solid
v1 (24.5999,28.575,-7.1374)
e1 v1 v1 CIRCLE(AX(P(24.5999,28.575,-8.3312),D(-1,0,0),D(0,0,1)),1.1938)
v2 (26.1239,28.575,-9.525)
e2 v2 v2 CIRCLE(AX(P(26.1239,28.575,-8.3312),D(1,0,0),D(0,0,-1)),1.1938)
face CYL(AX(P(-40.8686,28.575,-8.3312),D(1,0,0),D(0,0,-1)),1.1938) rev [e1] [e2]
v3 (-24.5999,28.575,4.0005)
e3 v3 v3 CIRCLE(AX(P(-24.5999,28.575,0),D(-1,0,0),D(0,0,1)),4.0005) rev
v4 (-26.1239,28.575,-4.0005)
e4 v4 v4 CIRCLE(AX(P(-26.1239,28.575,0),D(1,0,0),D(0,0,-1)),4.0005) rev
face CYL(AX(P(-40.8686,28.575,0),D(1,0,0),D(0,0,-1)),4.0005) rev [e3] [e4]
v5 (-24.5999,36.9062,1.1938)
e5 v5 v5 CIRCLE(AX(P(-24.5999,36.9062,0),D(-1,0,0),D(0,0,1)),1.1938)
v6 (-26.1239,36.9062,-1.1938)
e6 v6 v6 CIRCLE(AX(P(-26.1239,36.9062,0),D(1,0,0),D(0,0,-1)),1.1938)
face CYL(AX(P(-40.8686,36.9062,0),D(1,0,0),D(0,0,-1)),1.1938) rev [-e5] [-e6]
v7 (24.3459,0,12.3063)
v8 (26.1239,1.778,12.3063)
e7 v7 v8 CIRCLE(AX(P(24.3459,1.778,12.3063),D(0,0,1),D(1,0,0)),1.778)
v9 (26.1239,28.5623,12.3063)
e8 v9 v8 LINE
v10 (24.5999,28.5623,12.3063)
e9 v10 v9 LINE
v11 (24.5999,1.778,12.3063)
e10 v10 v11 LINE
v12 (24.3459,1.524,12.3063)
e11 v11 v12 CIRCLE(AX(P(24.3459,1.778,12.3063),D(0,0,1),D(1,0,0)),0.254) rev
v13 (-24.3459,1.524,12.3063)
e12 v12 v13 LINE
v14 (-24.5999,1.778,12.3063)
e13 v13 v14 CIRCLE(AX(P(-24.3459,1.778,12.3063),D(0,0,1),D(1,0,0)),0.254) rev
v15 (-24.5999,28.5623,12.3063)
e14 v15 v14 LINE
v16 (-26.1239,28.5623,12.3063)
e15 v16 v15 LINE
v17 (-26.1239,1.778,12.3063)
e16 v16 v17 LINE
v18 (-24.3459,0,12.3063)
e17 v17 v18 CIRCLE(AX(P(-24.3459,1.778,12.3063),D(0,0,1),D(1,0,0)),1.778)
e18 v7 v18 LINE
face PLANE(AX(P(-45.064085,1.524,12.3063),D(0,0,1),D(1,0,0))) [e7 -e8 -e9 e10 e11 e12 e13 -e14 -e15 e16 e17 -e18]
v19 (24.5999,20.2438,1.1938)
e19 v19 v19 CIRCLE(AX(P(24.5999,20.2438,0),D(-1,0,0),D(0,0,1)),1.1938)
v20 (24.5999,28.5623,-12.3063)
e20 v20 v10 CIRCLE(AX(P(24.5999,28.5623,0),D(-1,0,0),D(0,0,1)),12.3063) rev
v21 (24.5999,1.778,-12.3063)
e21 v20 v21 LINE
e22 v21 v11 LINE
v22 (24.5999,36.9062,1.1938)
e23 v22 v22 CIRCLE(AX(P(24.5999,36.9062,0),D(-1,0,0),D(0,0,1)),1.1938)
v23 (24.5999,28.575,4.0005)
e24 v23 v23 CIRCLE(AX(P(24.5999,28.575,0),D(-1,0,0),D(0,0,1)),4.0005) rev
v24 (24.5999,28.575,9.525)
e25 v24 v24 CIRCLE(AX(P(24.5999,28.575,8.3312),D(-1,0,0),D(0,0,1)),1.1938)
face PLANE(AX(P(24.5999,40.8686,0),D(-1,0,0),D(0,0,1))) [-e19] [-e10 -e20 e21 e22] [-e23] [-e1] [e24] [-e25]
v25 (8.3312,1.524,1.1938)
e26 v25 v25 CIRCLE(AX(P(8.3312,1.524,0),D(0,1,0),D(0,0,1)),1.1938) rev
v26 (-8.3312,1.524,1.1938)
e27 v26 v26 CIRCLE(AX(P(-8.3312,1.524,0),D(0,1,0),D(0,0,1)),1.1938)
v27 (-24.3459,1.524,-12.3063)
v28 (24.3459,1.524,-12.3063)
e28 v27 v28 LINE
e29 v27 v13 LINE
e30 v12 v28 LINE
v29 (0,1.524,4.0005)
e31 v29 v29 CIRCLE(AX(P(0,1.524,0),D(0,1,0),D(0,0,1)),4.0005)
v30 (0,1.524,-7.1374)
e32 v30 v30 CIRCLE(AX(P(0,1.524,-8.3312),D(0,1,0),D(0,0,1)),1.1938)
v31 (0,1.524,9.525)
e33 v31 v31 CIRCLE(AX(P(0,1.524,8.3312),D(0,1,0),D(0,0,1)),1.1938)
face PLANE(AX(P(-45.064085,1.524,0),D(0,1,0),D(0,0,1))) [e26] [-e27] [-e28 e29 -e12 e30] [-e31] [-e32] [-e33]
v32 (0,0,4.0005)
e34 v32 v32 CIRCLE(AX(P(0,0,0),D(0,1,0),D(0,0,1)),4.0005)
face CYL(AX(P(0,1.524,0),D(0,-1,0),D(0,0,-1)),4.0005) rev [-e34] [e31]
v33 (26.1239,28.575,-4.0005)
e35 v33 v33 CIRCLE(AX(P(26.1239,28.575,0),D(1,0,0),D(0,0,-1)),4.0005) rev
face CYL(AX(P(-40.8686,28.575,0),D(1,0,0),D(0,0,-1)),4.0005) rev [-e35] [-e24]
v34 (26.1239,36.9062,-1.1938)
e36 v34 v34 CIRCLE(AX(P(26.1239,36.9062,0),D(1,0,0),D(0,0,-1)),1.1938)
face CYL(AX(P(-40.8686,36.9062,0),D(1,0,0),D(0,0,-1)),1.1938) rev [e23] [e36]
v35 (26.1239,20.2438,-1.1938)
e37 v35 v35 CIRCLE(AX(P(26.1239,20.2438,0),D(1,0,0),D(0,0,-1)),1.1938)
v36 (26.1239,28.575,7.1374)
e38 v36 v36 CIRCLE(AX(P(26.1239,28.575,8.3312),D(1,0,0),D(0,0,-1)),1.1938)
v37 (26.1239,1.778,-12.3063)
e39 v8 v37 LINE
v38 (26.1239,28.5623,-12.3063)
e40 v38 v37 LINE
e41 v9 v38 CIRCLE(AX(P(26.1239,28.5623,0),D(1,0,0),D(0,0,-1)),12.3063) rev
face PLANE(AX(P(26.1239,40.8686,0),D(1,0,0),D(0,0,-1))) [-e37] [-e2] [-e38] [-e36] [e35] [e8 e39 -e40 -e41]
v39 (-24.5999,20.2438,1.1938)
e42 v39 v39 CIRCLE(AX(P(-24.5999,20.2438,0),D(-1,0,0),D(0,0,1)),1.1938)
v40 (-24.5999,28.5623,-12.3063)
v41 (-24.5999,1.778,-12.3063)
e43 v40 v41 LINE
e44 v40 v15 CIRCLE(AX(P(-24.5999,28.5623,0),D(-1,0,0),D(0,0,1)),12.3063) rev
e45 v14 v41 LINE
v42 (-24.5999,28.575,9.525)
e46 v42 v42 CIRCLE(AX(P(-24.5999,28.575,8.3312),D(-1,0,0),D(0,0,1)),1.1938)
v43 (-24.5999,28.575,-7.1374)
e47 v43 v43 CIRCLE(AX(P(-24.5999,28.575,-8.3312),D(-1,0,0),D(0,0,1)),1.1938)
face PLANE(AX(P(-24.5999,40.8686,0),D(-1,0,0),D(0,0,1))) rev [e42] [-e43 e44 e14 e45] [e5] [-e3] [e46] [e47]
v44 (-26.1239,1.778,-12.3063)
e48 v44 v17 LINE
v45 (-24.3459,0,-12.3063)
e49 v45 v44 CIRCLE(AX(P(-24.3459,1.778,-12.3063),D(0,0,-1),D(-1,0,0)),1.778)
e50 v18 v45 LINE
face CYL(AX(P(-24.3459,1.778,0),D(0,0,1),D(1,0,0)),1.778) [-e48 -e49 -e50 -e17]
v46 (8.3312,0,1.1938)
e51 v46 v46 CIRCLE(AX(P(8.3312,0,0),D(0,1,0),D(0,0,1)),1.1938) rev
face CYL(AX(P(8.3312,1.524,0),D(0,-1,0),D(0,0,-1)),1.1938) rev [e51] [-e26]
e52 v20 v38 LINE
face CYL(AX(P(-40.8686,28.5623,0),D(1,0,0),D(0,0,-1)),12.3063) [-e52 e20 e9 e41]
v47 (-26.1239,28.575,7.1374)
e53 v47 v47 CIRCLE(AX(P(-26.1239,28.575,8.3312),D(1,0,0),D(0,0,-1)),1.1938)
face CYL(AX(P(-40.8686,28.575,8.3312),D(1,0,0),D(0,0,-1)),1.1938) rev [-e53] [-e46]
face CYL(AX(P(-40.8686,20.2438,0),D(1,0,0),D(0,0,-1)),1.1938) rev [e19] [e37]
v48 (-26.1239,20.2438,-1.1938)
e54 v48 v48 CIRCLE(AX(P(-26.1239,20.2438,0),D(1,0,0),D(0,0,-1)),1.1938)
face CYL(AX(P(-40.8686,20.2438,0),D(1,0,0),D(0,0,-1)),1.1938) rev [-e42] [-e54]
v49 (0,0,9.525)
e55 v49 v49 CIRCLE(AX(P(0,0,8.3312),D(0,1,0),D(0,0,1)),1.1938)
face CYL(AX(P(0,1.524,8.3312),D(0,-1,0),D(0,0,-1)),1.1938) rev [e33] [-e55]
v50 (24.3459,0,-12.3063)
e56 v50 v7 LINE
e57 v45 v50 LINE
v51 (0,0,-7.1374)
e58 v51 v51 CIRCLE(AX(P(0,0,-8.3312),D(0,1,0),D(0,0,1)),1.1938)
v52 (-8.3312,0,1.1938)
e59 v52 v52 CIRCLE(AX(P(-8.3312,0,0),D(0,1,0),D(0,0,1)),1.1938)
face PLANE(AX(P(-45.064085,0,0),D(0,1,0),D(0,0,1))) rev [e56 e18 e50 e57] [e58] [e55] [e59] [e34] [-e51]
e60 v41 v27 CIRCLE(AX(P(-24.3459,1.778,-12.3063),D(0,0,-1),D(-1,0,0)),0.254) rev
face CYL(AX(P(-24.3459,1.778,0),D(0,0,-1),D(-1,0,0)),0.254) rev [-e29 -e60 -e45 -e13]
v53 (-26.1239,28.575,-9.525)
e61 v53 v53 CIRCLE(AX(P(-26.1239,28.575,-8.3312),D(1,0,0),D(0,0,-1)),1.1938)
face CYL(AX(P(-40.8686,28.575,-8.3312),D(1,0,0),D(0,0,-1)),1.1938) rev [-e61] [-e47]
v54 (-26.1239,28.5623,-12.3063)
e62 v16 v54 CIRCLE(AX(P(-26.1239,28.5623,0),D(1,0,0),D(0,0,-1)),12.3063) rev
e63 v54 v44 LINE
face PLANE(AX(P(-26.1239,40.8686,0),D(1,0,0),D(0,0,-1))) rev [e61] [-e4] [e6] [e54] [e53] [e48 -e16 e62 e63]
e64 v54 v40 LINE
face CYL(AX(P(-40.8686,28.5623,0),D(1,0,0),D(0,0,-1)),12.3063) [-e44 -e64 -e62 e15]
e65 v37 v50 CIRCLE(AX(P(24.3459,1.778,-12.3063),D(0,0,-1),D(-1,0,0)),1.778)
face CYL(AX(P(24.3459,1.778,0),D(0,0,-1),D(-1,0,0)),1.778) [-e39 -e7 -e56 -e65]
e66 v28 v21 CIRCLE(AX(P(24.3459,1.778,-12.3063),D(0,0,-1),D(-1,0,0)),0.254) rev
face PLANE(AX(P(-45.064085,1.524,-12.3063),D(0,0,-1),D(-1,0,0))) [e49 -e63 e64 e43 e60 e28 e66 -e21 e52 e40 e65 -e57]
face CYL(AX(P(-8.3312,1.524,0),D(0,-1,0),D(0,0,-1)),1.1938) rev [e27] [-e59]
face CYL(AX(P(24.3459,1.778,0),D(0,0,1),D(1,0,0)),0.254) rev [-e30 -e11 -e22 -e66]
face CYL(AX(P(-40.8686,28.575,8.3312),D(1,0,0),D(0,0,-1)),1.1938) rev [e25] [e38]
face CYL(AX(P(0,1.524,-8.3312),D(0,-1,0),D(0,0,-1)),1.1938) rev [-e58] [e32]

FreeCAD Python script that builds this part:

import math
import FreeCAD as App
import Part
import Sketcher

V = App.Vector
Q = App.Units.Quantity


def edges_at(feature, points):
    """Names of the edges that pass closest to the given points."""
    edges = feature.Shape.Edges
    near = lambda p: min(range(len(edges)), key=lambda i: edges[i].distToShape(Part.Vertex(*p))[0])
    return sorted({f"Edge{near(p) + 1}" for p in points})


def add_polygon(sketch, points):
    """Adds a closed chain of lines whose ends are joined by coincident constraints."""
    first, n = sketch.GeometryCount, len(points)
    for a, b in zip(points, points[1:] + points[:1]):
        sketch.addGeometry(Part.LineSegment(App.Vector(*a, 0), App.Vector(*b, 0)), False)
    for i in range(n):
        sketch.addConstraint(Sketcher.Constraint("Coincident", first + i, 2, first + (i + 1) % n, 1))

doc = App.newDocument("Part")
params = doc.addObject("Spreadsheet::Sheet", "Params")
for row, (alias, value) in enumerate([
    ("sketch1_diameter", "0.094 in"),
    ("sketch1_diameter2", "0.315 in"),
    ("sketch1_width", "1.937 in"),
    ("sketch1_height", "0.969 in"),
    ("pad1_length", "0.06 in"),
    ("sketch2_width", "0.06 in"),
    ("sketch2_height", "0.969 in"),
    ("pad2_length", "1.609 in"),
    ("sketch3_diameter", "0.315 in"),
    ("sketch3_diameter2", "0.094 in"),
    ("fillet_radius", "0.01 in"),
    ("fillet2_radius", "0.07 in"),
], start=1):
    params.set(f"A{row}", alias)
    params.set(f"B{row}", "=" + value)
    params.setAlias(f"B{row}", alias)

body = doc.addObject("PartDesign::Body", "Body")

sketch1 = body.newObject("Sketcher::SketchObject", "Sketch")
sketch1.AttachmentSupport = (doc.getObject("XZ_Plane"), [""])
sketch1.MapMode = "FlatFace"
add_polygon(sketch1, [(-24.5999, -12.3063), (-24.5999, 12.3063), (24.5999, 12.3063), (24.5999, -12.3063)])
sketch1.addGeometry(Part.Circle(V(0, 8.3312, 0), V(0, 0, 1), 1.1938), False)
sketch1.addGeometry(Part.Circle(V(-8.3312, 0, 0), V(0, 0, 1), 1.1938), False)
sketch1.addGeometry(Part.Circle(V(0, 0, 0), V(0, 0, 1), 4.0005), False)
sketch1.addGeometry(Part.Circle(V(8.3312, 0, 0), V(0, 0, 1), 1.1938), False)
sketch1.addGeometry(Part.Circle(V(0, -8.3312, 0), V(0, 0, 1), 1.1938), False)
sketch1.addConstraint([
    Sketcher.Constraint("Vertical", 0),
    Sketcher.Constraint("Horizontal", 1),
    Sketcher.Constraint("Vertical", 2),
    Sketcher.Constraint("Horizontal", 3),
    Sketcher.Constraint("Coincident", 6, 3, -1, 1),
    Sketcher.Constraint("Equal", 4, 5),
    Sketcher.Constraint("Equal", 5, 7),
    Sketcher.Constraint("Equal", 7, 8),
    Sketcher.Constraint("Symmetric", 5, 3, 7, 3, -1, 1),
    Sketcher.Constraint("Symmetric", 4, 3, 8, 3, -1, 1),
    Sketcher.Constraint("Symmetric", 0, 2, 2, 2, -1, 1),
    Sketcher.Constraint("PointOnObject", 4, 3, -2),
    Sketcher.Constraint("PointOnObject", 5, 3, -1),
    Sketcher.Constraint("Diameter", 4, Q("0.094 in")),
    Sketcher.Constraint("Diameter", 6, Q("0.315 in")),
    Sketcher.Constraint("DistanceX", 1, 1, 1, 2, Q("1.937 in")),
    Sketcher.Constraint("DistanceY", 0, 1, 0, 2, Q("0.969 in")),
    Sketcher.Constraint("DistanceY", -1, 1, 4, 3, Q("0.328 in")),
    Sketcher.Constraint("DistanceX", 5, 3, -1, 1, Q("0.328 in")),
])
sketch1.setExpression("Constraints[17]", "Params.sketch1_diameter")
sketch1.setExpression("Constraints[18]", "Params.sketch1_diameter2")
sketch1.setExpression("Constraints[19]", "Params.sketch1_width")
sketch1.setExpression("Constraints[20]", "Params.sketch1_height")
pad1 = body.newObject("PartDesign::Pad", "Pad")
pad1.Profile = sketch1
pad1.setExpression("Length", "Params.pad1_length")
pad1.Reversed = True

sketch2 = body.newObject("Sketcher::SketchObject", "Sketch001")
sketch2.AttachmentSupport = (doc.getObject("XZ_Plane"), [""])
sketch2.MapMode = "FlatFace"
add_polygon(sketch2, [(24.5999, -12.3063), (24.5999, 12.3063), (26.1239, 12.3063), (26.1239, -12.3063)])
add_polygon(sketch2, [(-26.1239, -12.3063), (-26.1239, 12.3063), (-24.5999, 12.3063), (-24.5999, -12.3063)])
sketch2.addConstraint([
    Sketcher.Constraint("Vertical", 0),
    Sketcher.Constraint("Horizontal", 1),
    Sketcher.Constraint("Vertical", 2),
    Sketcher.Constraint("Horizontal", 3),
    Sketcher.Constraint("Vertical", 4),
    Sketcher.Constraint("Horizontal", 5),
    Sketcher.Constraint("Vertical", 6),
    Sketcher.Constraint("Horizontal", 7),
    Sketcher.Constraint("Symmetric", 2, 2, 4, 2, -1, 1),
    Sketcher.Constraint("Symmetric", 0, 2, 6, 2, -1, 1),
    Sketcher.Constraint("Horizontal", 1, 2, 4, 2),
    Sketcher.Constraint("DistanceX", 1, 1, 1, 2, Q("0.06 in")),
    Sketcher.Constraint("DistanceY", 0, 1, 0, 2, Q("0.969 in")),
    Sketcher.Constraint("DistanceX", 4, 2, 0, 2, Q("1.997 in")),
])
sketch2.setExpression("Constraints[19]", "Params.sketch2_width")
sketch2.setExpression("Constraints[20]", "Params.sketch2_height")
pad2 = body.newObject("PartDesign::Pad", "Pad001")
pad2.Profile = sketch2
pad2.setExpression("Length", "Params.pad2_length")
pad2.Reversed = True

sketch3 = body.newObject("Sketcher::SketchObject", "Sketch002")
sketch3.AttachmentSupport = (doc.getObject("YZ_Plane"), [""])
sketch3.MapMode = "FlatFace"
sketch3.addGeometry([
    Part.LineSegment(V(40.8686, 0, 0), V(40.8686, 12.3063, 0)),
    Part.LineSegment(V(40.8686, 12.3063, 0), V(28.5623, 12.3063, 0)),
    Part.ArcOfCircle(Part.Circle(V(28.5623, 0, 0), V(0, 0, 1), 12.3063), math.radians(0), math.radians(90)),
    Part.LineSegment(V(40.8686, -12.3063, 0), V(40.8686, 0, 0)),
    Part.ArcOfCircle(Part.Circle(V(28.5623, 0, 0), V(0, 0, 1), 12.3063), math.radians(-90), math.radians(0)),
    Part.LineSegment(V(28.5623, -12.3063, 0), V(40.8686, -12.3063, 0)),
    Part.Circle(V(28.575, 0, 0), V(0, 0, 1), 4.0005),
    Part.Circle(V(28.575, -8.3312, 0), V(0, 0, 1), 1.1938),
    Part.Circle(V(36.9062, 0, 0), V(0, 0, 1), 1.1938),
    Part.Circle(V(28.575, 8.3312, 0), V(0, 0, 1), 1.1938),
    Part.Circle(V(20.2438, 0, 0), V(0, 0, 1), 1.1938),
], False)
sketch3.addConstraint([
    Sketcher.Constraint("Coincident", 0, 2, 1, 1),
    Sketcher.Constraint("Tangent", 1, 2, 2, 2),
    Sketcher.Constraint("Tangent", 2, 1, 0, 1),
    Sketcher.Constraint("Tangent", 3, 2, 4, 2),
    Sketcher.Constraint("Tangent", 4, 1, 5, 1),
    Sketcher.Constraint("Coincident", 5, 2, 3, 1),
    Sketcher.Constraint("Vertical", 0),
    Sketcher.Constraint("Horizontal", 1),
    Sketcher.Constraint("Vertical", 3),
    Sketcher.Constraint("Horizontal", 5),
    Sketcher.Constraint("Coincident", 4, 3, 2, 3),
    Sketcher.Constraint("Equal", 2, 4),
    Sketcher.Constraint("Equal", 7, 8),
    Sketcher.Constraint("Equal", 8, 9),
    Sketcher.Constraint("Equal", 9, 10),
    Sketcher.Constraint("Symmetric", 7, 3, 9, 3, -1),
    Sketcher.Constraint("PointOnObject", 2, 3, -1),
    Sketcher.Constraint("PointOnObject", 6, 3, -1),
    Sketcher.Constraint("PointOnObject", 8, 3, -1),
    Sketcher.Constraint("PointOnObject", 10, 3, -1),
    Sketcher.Constraint("Vertical", 6, 3, 7, 3),
    Sketcher.Constraint("Diameter", 6, Q("0.315 in")),
    Sketcher.Constraint("Diameter", 7, Q("0.094 in")),
    Sketcher.Constraint("Radius", 2, Q("0.4845 in")),
    Sketcher.Constraint("DistanceX", -1, 1, 6, 3, Q("1.125 in")),
    Sketcher.Constraint("DistanceY", 7, 3, -1, 1, Q("0.328 in")),
    Sketcher.Constraint("DistanceX", -1, 1, 8, 3, Q("1.453 in")),
    Sketcher.Constraint("DistanceX", -1, 1, 10, 3, Q("0.797 in")),
    Sketcher.Constraint("DistanceX", -1, 1, 0, 2, Q("1.609 in")),
])
sketch3.setExpression("Constraints[21]", "Params.sketch3_diameter")
sketch3.setExpression("Constraints[22]", "Params.sketch3_diameter2")
pocket1 = body.newObject("PartDesign::Pocket", "Pocket")
pocket1.Profile = sketch3
pocket1.Type = "ThroughAll"
pocket1.Midplane = True
doc.recompute()

fillet = body.newObject("PartDesign::Fillet", "Fillet")
fillet.Base = (pocket1, edges_at(pocket1, [(-24.6, 1.524, 0), (24.6, 1.524, 0)]))
fillet.setExpression("Radius", "Params.fillet_radius")
doc.recompute()

fillet2 = body.newObject("PartDesign::Fillet", "Fillet001")
fillet2.Base = (fillet, edges_at(fillet, [(-26.124, 0, 0), (26.124, 0, 0)]))
fillet2.setExpression("Radius", "Params.fillet2_radius")

doc.recompute()
